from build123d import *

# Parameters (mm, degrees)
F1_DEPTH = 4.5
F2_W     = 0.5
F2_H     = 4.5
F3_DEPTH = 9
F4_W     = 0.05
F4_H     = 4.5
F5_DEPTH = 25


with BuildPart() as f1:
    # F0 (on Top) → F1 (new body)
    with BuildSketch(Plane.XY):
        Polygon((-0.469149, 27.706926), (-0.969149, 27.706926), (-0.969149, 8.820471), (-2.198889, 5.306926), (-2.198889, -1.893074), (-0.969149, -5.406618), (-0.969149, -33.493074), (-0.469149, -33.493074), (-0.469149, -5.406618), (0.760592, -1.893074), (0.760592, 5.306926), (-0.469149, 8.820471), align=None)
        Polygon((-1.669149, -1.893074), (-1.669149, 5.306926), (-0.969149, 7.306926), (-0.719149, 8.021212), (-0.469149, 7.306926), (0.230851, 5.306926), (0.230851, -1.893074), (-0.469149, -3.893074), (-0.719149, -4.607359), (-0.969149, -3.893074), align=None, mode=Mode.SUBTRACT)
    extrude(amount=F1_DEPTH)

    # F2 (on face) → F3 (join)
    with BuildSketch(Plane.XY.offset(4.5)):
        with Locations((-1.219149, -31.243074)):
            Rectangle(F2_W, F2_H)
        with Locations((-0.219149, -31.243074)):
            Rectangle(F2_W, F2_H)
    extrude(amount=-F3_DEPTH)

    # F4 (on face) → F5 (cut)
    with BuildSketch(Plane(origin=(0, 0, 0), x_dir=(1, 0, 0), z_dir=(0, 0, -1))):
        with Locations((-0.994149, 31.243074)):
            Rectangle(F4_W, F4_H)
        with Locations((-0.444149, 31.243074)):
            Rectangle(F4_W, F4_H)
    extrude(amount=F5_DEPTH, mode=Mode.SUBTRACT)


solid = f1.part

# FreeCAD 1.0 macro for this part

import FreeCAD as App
import Part
import Sketcher

doc = App.newDocument("Part")
body = doc.addObject("PartDesign::Body", "Body")

sketch1 = body.newObject("Sketcher::SketchObject", "Sketch")
sketch1.AttachmentSupport = (doc.getObject("XY_Plane"), [""])
sketch1.MapMode = "FlatFace"
sketch1.addGeometry([
    Part.LineSegment(App.Vector(-0.469149, 27.706926, 0), App.Vector(-0.969149, 27.706926, 0)),
    Part.LineSegment(App.Vector(-0.969149, 27.706926, 0), App.Vector(-0.969149, 8.820471, 0)),
    Part.LineSegment(App.Vector(-0.969149, 8.820471, 0), App.Vector(-2.198889, 5.306926, 0)),
    Part.LineSegment(App.Vector(-2.198889, 5.306926, 0), App.Vector(-2.198889, -1.893074, 0)),
    Part.LineSegment(App.Vector(-2.198889, -1.893074, 0), App.Vector(-0.969149, -5.406618, 0)),
    Part.LineSegment(App.Vector(-0.969149, -5.406618, 0), App.Vector(-0.969149, -33.493074, 0)),
    Part.LineSegment(App.Vector(-0.969149, -33.493074, 0), App.Vector(-0.469149, -33.493074, 0)),
    Part.LineSegment(App.Vector(-0.469149, -33.493074, 0), App.Vector(-0.469149, -5.406618, 0)),
    Part.LineSegment(App.Vector(-0.469149, -5.406618, 0), App.Vector(0.760592, -1.893074, 0)),
    Part.LineSegment(App.Vector(0.760592, -1.893074, 0), App.Vector(0.760592, 5.306926, 0)),
    Part.LineSegment(App.Vector(0.760592, 5.306926, 0), App.Vector(-0.469149, 8.820471, 0)),
    Part.LineSegment(App.Vector(-0.469149, 8.820471, 0), App.Vector(-0.469149, 27.706926, 0)),
    Part.LineSegment(App.Vector(-0.969149, -3.893074, 0), App.Vector(-1.669149, -1.893074, 0)),
    Part.LineSegment(App.Vector(-1.669149, -1.893074, 0), App.Vector(-1.669149, 5.306926, 0)),
    Part.LineSegment(App.Vector(-1.669149, 5.306926, 0), App.Vector(-0.969149, 7.306926, 0)),
    Part.LineSegment(App.Vector(-0.969149, 7.306926, 0), App.Vector(-0.719149, 8.021212, 0)),
    Part.LineSegment(App.Vector(-0.719149, 8.021212, 0), App.Vector(-0.469149, 7.306926, 0)),
    Part.LineSegment(App.Vector(-0.469149, 7.306926, 0), App.Vector(0.230851, 5.306926, 0)),
    Part.LineSegment(App.Vector(0.230851, 5.306926, 0), App.Vector(0.230851, -1.893074, 0)),
    Part.LineSegment(App.Vector(0.230851, -1.893074, 0), App.Vector(-0.469149, -3.893074, 0)),
    Part.LineSegment(App.Vector(-0.469149, -3.893074, 0), App.Vector(-0.719149, -4.607359, 0)),
    Part.LineSegment(App.Vector(-0.719149, -4.607359, 0), App.Vector(-0.969149, -3.893074, 0)),
], False)
sketch1.addConstraint([
    Sketcher.Constraint("Coincident", 0, 2, 1, 1),
    Sketcher.Constraint("Coincident", 1, 2, 2, 1),
    Sketcher.Constraint("Coincident", 2, 2, 3, 1),
    Sketcher.Constraint("Coincident", 3, 2, 4, 1),
    Sketcher.Constraint("Coincident", 4, 2, 5, 1),
    Sketcher.Constraint("Coincident", 5, 2, 6, 1),
    Sketcher.Constraint("Coincident", 6, 2, 7, 1),
    Sketcher.Constraint("Coincident", 7, 2, 8, 1),
    Sketcher.Constraint("Coincident", 8, 2, 9, 1),
    Sketcher.Constraint("Coincident", 9, 2, 10, 1),
    Sketcher.Constraint("Coincident", 10, 2, 11, 1),
    Sketcher.Constraint("Coincident", 11, 2, 0, 1),
    Sketcher.Constraint("Coincident", 12, 2, 13, 1),
    Sketcher.Constraint("Coincident", 13, 2, 14, 1),
    Sketcher.Constraint("Coincident", 14, 2, 15, 1),
    Sketcher.Constraint("Coincident", 15, 2, 16, 1),
    Sketcher.Constraint("Coincident", 16, 2, 17, 1),
    Sketcher.Constraint("Coincident", 17, 2, 18, 1),
    Sketcher.Constraint("Coincident", 18, 2, 19, 1),
    Sketcher.Constraint("Coincident", 19, 2, 20, 1),
    Sketcher.Constraint("Coincident", 20, 2, 21, 1),
    Sketcher.Constraint("Coincident", 21, 2, 12, 1),
    Sketcher.Constraint("Horizontal", 0),
    Sketcher.Constraint("Vertical", 1),
    Sketcher.Constraint("Vertical", 3),
    Sketcher.Constraint("Vertical", 5),
    Sketcher.Constraint("Horizontal", 6),
    Sketcher.Constraint("Vertical", 7),
    Sketcher.Constraint("Vertical", 9),
    Sketcher.Constraint("Vertical", 11),
    Sketcher.Constraint("Vertical", 13),
    Sketcher.Constraint("Vertical", 18),
    Sketcher.Constraint("Parallel", 2, 8),
    Sketcher.Constraint("Parallel", 4, 10),
    Sketcher.Constraint("Parallel", 10, 12),
    Sketcher.Constraint("Parallel", 8, 14),
    Sketcher.Constraint("Parallel", 14, 15),
    Sketcher.Constraint("Parallel", 12, 16),
    Sketcher.Constraint("Parallel", 16, 17),
    Sketcher.Constraint("Parallel", 15, 19),
    Sketcher.Constraint("Parallel", 19, 20),
    Sketcher.Constraint("Parallel", 17, 21),
    Sketcher.Constraint("Horizontal", 4, 2, 7, 2),
    Sketcher.Constraint("Horizontal", 3, 2, 8, 2),
    Sketcher.Constraint("Horizontal", 2, 2, 9, 2),
    Sketcher.Constraint("Horizontal", 1, 2, 10, 2),
    Sketcher.Constraint("Horizontal", 8, 2, 12, 2),
    Sketcher.Constraint("Horizontal", 9, 2, 13, 2),
    Sketcher.Constraint("Horizontal", 14, 2, 16, 2),
    Sketcher.Constraint("Horizontal", 13, 2, 17, 2),
    Sketcher.Constraint("Horizontal", 12, 2, 18, 2),
    Sketcher.Constraint("Horizontal", 19, 2, 21, 2),
    Sketcher.Constraint("Vertical", 1, 2, 4, 2),
    Sketcher.Constraint("Vertical", 7, 2, 10, 2),
    Sketcher.Constraint("Vertical", 5, 2, 14, 2),
    Sketcher.Constraint("Vertical", 11, 2, 16, 2),
    Sketcher.Constraint("Vertical", 16, 2, 19, 2),
    Sketcher.Constraint("DistanceX", 0, 2, 0, 1, 0.5),
    Sketcher.Constraint("DistanceY", 3, 2, 3, 1, 7.2),
    Sketcher.Constraint("DistanceY", 13, 2, 14, 2, 2.0),
    Sketcher.Constraint("DistanceY", 2, 2, 0, 2, 22.4),
    Sketcher.Constraint("DistanceY", 5, 2, 3, 2, 31.6),
    Sketcher.Constraint("DistanceX", 12, 2, 4, 2, 0.7),
    Sketcher.Constraint("DistanceY", 1, 2, 1, 1, 18.886455),
    Sketcher.Constraint("DistanceX", 0, 2, -1, 1, 0.969149),
    Sketcher.Constraint("DistanceY", -1, 1, 1, 2, 8.820471),
])
pad1 = body.newObject("PartDesign::Pad", "Pad")
pad1.Profile = sketch1
pad1.Length = 4.5

sketch2 = body.newObject("Sketcher::SketchObject", "Sketch001")
sketch2.AttachmentSupport = (doc.getObject("XY_Plane"), [""])
sketch2.MapMode = "FlatFace"
sketch2.AttachmentOffset = App.Placement(App.Vector(0, 0, 4.5), App.Rotation())
sketch2.addGeometry([
    Part.LineSegment(App.Vector(-1.469149, -28.993074, 0), App.Vector(-1.469149, -33.493074, 0)),
    Part.LineSegment(App.Vector(-1.469149, -33.493074, 0), App.Vector(-0.969149, -33.493074, 0)),
    Part.LineSegment(App.Vector(-0.969149, -33.493074, 0), App.Vector(-0.969149, -28.993074, 0)),
    Part.LineSegment(App.Vector(-0.969149, -28.993074, 0), App.Vector(-1.469149, -28.993074, 0)),
    Part.LineSegment(App.Vector(-0.469149, -28.993074, 0), App.Vector(-0.469149, -33.493074, 0)),
    Part.LineSegment(App.Vector(-0.469149, -33.493074, 0), App.Vector(0.030851, -33.493074, 0)),
    Part.LineSegment(App.Vector(0.030851, -33.493074, 0), App.Vector(0.030851, -28.993074, 0)),
    Part.LineSegment(App.Vector(0.030851, -28.993074, 0), App.Vector(-0.469149, -28.993074, 0)),
], False)
sketch2.addConstraint([
    Sketcher.Constraint("Coincident", 0, 2, 1, 1),
    Sketcher.Constraint("Coincident", 1, 2, 2, 1),
    Sketcher.Constraint("Coincident", 2, 2, 3, 1),
    Sketcher.Constraint("Coincident", 3, 2, 0, 1),
    Sketcher.Constraint("Coincident", 4, 2, 5, 1),
    Sketcher.Constraint("Coincident", 5, 2, 6, 1),
    Sketcher.Constraint("Coincident", 6, 2, 7, 1),
    Sketcher.Constraint("Coincident", 7, 2, 4, 1),
    Sketcher.Constraint("Vertical", 0),
    Sketcher.Constraint("Horizontal", 1),
    Sketcher.Constraint("Vertical", 2),
    Sketcher.Constraint("Horizontal", 3),
    Sketcher.Constraint("Vertical", 4),
    Sketcher.Constraint("Horizontal", 5),
    Sketcher.Constraint("Vertical", 6),
    Sketcher.Constraint("Horizontal", 7),
    Sketcher.Constraint("Horizontal", 1, 2, 4, 2),
    Sketcher.Constraint("Horizontal", 3, 2, 6, 2),
    Sketcher.Constraint("Equal", 3, 5),
    Sketcher.Constraint("DistanceX", 1, 1, 1, 2, 0.5),
    Sketcher.Constraint("DistanceY", 0, 2, 0, 1, 4.5),
    Sketcher.Constraint("DistanceX", 0, 2, 4, 2, 1.0),
    Sketcher.Constraint("DistanceX", 0, 2, -1, 1, 1.469149),
    Sketcher.Constraint("DistanceY", 0, 2, -1, 1, 33.493074),
])
pad2 = body.newObject("PartDesign::Pad", "Pad001")
pad2.Profile = sketch2
pad2.Length = 9
pad2.Reversed = True

sketch3 = body.newObject("Sketcher::SketchObject", "Sketch002")
sketch3.AttachmentSupport = (doc.getObject("XY_Plane"), [""])
sketch3.MapMode = "FlatFace"
sketch3.addGeometry([
    Part.LineSegment(App.Vector(-1.019149, -33.493074, 0), App.Vector(-1.019149, -28.993074, 0)),
    Part.LineSegment(App.Vector(-1.019149, -28.993074, 0), App.Vector(-0.969149, -28.993074, 0)),
    Part.LineSegment(App.Vector(-0.969149, -28.993074, 0), App.Vector(-0.969149, -33.493074, 0)),
    Part.LineSegment(App.Vector(-0.969149, -33.493074, 0), App.Vector(-1.019149, -33.493074, 0)),
    Part.LineSegment(App.Vector(-0.469149, -33.493074, 0), App.Vector(-0.469149, -28.993074, 0)),
    Part.LineSegment(App.Vector(-0.469149, -28.993074, 0), App.Vector(-0.419149, -28.993074, 0)),
    Part.LineSegment(App.Vector(-0.419149, -28.993074, 0), App.Vector(-0.419149, -33.493074, 0)),
    Part.LineSegment(App.Vector(-0.419149, -33.493074, 0), App.Vector(-0.469149, -33.493074, 0)),
], False)
sketch3.addConstraint([
    Sketcher.Constraint("Coincident", 0, 2, 1, 1),
    Sketcher.Constraint("Coincident", 1, 2, 2, 1),
    Sketcher.Constraint("Coincident", 2, 2, 3, 1),
    Sketcher.Constraint("Coincident", 3, 2, 0, 1),
    Sketcher.Constraint("Coincident", 4, 2, 5, 1),
    Sketcher.Constraint("Coincident", 5, 2, 6, 1),
    Sketcher.Constraint("Coincident", 6, 2, 7, 1),
    Sketcher.Constraint("Coincident", 7, 2, 4, 1),
    Sketcher.Constraint("Vertical", 0),
    Sketcher.Constraint("Horizontal", 1),
    Sketcher.Constraint("Vertical", 2),
    Sketcher.Constraint("Horizontal", 3),
    Sketcher.Constraint("Vertical", 4),
    Sketcher.Constraint("Horizontal", 5),
    Sketcher.Constraint("Vertical", 6),
    Sketcher.Constraint("Horizontal", 7),
    Sketcher.Constraint("Horizontal", 1, 2, 4, 2),
    Sketcher.Constraint("Horizontal", 3, 2, 6, 2),
    Sketcher.Constraint("Equal", 3, 5),
    Sketcher.Constraint("DistanceY", 0, 1, 0, 2, 4.5),
    Sketcher.Constraint("DistanceX", 1, 1, 1, 2, 0.05),
    Sketcher.Constraint("DistanceX", 1, 2, 4, 2, 0.5),
    Sketcher.Constraint("DistanceX", 0, 2, -1, 1, 1.019149),
    Sketcher.Constraint("DistanceY", 0, 2, -1, 1, 28.993074),
])
pocket1 = body.newObject("PartDesign::Pocket", "Pocket")
pocket1.Profile = sketch3
pocket1.Length = 25

doc.recompute()
